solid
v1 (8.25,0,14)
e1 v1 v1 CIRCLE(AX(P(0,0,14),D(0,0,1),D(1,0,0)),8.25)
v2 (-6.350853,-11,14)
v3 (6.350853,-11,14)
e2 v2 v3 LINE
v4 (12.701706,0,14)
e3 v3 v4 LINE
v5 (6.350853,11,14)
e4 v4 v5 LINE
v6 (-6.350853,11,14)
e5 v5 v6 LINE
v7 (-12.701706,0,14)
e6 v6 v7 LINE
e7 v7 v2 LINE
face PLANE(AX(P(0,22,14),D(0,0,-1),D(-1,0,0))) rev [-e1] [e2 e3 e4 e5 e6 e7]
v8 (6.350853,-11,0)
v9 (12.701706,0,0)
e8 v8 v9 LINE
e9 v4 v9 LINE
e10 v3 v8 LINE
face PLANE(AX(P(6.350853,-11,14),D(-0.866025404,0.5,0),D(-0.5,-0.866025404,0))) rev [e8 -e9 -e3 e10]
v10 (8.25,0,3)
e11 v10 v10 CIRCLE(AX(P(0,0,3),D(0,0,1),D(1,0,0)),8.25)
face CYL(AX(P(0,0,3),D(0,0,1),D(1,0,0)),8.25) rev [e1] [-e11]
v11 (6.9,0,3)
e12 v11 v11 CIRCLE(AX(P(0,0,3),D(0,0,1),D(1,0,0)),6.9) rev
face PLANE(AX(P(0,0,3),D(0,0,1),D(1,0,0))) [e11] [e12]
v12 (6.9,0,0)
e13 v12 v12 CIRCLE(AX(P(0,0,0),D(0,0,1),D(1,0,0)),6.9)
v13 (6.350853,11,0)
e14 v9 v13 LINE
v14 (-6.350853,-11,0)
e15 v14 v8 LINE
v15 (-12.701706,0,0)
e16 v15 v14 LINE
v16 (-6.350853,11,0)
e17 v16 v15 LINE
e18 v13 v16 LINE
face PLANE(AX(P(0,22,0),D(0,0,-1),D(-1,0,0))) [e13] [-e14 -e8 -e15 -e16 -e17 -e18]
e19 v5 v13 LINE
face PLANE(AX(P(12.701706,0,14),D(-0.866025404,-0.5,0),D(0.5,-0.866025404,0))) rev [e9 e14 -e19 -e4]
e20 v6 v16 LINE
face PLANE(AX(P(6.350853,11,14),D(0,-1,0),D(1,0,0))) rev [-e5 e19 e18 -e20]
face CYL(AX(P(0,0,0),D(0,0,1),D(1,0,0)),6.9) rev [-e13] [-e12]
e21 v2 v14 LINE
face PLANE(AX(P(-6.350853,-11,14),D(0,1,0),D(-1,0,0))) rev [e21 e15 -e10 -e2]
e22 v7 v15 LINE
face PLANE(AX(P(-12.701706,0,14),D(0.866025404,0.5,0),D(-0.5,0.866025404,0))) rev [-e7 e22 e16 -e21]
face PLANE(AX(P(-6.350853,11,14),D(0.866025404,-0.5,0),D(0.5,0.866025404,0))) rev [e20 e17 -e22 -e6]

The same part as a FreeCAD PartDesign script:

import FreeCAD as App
import Part
import Sketcher
from FreeCAD import Vector
Q = App.Units.Quantity

doc = App.newDocument("Part")
body = doc.addObject("PartDesign::Body", "Body")

sketch1 = body.newObject("Sketcher::SketchObject", "Sketch")
sketch1.AttachmentSupport = (doc.getObject("XY_Plane"), [""])
sketch1.MapMode = "FlatFace"
sketch1.addGeometry([
    Part.LineSegment(Vector(-12.701706, 0, 0), Vector(-6.350853, -11, 0)),
    Part.LineSegment(Vector(-6.350853, -11, 0), Vector(6.350853, -11, 0)),
    Part.LineSegment(Vector(6.350853, -11, 0), Vector(12.701706, 0, 0)),
    Part.LineSegment(Vector(12.701706, 0, 0), Vector(6.350853, 11, 0)),
    Part.LineSegment(Vector(6.350853, 11, 0), Vector(-6.350853, 11, 0)),
    Part.LineSegment(Vector(-6.350853, 11, 0), Vector(-12.701706, 0, 0)),
], False)
sketch1.addConstraint([
    Sketcher.Constraint("Coincident", 0, 2, 1, 1),
    Sketcher.Constraint("Coincident", 1, 2, 2, 1),
    Sketcher.Constraint("Coincident", 2, 2, 3, 1),
    Sketcher.Constraint("Coincident", 3, 2, 4, 1),
    Sketcher.Constraint("Coincident", 4, 2, 5, 1),
    Sketcher.Constraint("Coincident", 5, 2, 0, 1),
    Sketcher.Constraint("Horizontal", 1),
    Sketcher.Constraint("Horizontal", 4),
    Sketcher.Constraint("Symmetric", 0, 2, 3, 2, -1, 1),
    Sketcher.Constraint("Symmetric", 2, 2, 5, 2, -1, 1),
    Sketcher.Constraint("PointOnObject", 2, 2, -1),
    Sketcher.Constraint("Parallel", 2, 5),
    Sketcher.Constraint("Vertical", 1, 2, 3, 2),
    Sketcher.Constraint("Angle", 0, Q("-60 deg")),
    Sketcher.Constraint("DistanceY", 0, 2, -1, 1, Q("11 mm")),
    Sketcher.Constraint("DistanceX", 1, 1, 1, 2, Q("12.701706 mm")),
])
pad1 = body.newObject("PartDesign::Pad", "Pad")
pad1.Profile = sketch1
pad1.Length = 14

sketch2 = body.newObject("Sketcher::SketchObject", "Sketch001")
sketch2.AttachmentSupport = (doc.getObject("XY_Plane"), [""])
sketch2.MapMode = "FlatFace"
sketch2.AttachmentOffset = App.Placement(Vector(0, 0, 14), App.Rotation())
sketch2.addGeometry(Part.Circle(Vector(0, 0, 0), Vector(0, 0, 1), 6.9), False)
sketch2.addConstraint([
    Sketcher.Constraint("Coincident", 0, 3, -1, 1),
    Sketcher.Constraint("Diameter", 0, Q("13.8 mm")),
])
pocket1 = body.newObject("PartDesign::Pocket", "Pocket")
pocket1.Profile = sketch2
pocket1.Type = "ThroughAll"

sketch3 = body.newObject("Sketcher::SketchObject", "Sketch002")
sketch3.AttachmentSupport = (doc.getObject("XY_Plane"), [""])
sketch3.MapMode = "FlatFace"
sketch3.AttachmentOffset = App.Placement(Vector(0, 0, 14), App.Rotation())
sketch3.addGeometry(Part.Circle(Vector(0, 0, 0), Vector(0, 0, 1), 8.25), False)
sketch3.addConstraint([
    Sketcher.Constraint("Coincident", 0, 3, -1, 1),
    Sketcher.Constraint("Diameter", 0, Q("16.5 mm")),
])
pocket2 = body.newObject("PartDesign::Pocket", "Pocket001")
pocket2.Profile = sketch3
pocket2.Length = 11

doc.recompute()
